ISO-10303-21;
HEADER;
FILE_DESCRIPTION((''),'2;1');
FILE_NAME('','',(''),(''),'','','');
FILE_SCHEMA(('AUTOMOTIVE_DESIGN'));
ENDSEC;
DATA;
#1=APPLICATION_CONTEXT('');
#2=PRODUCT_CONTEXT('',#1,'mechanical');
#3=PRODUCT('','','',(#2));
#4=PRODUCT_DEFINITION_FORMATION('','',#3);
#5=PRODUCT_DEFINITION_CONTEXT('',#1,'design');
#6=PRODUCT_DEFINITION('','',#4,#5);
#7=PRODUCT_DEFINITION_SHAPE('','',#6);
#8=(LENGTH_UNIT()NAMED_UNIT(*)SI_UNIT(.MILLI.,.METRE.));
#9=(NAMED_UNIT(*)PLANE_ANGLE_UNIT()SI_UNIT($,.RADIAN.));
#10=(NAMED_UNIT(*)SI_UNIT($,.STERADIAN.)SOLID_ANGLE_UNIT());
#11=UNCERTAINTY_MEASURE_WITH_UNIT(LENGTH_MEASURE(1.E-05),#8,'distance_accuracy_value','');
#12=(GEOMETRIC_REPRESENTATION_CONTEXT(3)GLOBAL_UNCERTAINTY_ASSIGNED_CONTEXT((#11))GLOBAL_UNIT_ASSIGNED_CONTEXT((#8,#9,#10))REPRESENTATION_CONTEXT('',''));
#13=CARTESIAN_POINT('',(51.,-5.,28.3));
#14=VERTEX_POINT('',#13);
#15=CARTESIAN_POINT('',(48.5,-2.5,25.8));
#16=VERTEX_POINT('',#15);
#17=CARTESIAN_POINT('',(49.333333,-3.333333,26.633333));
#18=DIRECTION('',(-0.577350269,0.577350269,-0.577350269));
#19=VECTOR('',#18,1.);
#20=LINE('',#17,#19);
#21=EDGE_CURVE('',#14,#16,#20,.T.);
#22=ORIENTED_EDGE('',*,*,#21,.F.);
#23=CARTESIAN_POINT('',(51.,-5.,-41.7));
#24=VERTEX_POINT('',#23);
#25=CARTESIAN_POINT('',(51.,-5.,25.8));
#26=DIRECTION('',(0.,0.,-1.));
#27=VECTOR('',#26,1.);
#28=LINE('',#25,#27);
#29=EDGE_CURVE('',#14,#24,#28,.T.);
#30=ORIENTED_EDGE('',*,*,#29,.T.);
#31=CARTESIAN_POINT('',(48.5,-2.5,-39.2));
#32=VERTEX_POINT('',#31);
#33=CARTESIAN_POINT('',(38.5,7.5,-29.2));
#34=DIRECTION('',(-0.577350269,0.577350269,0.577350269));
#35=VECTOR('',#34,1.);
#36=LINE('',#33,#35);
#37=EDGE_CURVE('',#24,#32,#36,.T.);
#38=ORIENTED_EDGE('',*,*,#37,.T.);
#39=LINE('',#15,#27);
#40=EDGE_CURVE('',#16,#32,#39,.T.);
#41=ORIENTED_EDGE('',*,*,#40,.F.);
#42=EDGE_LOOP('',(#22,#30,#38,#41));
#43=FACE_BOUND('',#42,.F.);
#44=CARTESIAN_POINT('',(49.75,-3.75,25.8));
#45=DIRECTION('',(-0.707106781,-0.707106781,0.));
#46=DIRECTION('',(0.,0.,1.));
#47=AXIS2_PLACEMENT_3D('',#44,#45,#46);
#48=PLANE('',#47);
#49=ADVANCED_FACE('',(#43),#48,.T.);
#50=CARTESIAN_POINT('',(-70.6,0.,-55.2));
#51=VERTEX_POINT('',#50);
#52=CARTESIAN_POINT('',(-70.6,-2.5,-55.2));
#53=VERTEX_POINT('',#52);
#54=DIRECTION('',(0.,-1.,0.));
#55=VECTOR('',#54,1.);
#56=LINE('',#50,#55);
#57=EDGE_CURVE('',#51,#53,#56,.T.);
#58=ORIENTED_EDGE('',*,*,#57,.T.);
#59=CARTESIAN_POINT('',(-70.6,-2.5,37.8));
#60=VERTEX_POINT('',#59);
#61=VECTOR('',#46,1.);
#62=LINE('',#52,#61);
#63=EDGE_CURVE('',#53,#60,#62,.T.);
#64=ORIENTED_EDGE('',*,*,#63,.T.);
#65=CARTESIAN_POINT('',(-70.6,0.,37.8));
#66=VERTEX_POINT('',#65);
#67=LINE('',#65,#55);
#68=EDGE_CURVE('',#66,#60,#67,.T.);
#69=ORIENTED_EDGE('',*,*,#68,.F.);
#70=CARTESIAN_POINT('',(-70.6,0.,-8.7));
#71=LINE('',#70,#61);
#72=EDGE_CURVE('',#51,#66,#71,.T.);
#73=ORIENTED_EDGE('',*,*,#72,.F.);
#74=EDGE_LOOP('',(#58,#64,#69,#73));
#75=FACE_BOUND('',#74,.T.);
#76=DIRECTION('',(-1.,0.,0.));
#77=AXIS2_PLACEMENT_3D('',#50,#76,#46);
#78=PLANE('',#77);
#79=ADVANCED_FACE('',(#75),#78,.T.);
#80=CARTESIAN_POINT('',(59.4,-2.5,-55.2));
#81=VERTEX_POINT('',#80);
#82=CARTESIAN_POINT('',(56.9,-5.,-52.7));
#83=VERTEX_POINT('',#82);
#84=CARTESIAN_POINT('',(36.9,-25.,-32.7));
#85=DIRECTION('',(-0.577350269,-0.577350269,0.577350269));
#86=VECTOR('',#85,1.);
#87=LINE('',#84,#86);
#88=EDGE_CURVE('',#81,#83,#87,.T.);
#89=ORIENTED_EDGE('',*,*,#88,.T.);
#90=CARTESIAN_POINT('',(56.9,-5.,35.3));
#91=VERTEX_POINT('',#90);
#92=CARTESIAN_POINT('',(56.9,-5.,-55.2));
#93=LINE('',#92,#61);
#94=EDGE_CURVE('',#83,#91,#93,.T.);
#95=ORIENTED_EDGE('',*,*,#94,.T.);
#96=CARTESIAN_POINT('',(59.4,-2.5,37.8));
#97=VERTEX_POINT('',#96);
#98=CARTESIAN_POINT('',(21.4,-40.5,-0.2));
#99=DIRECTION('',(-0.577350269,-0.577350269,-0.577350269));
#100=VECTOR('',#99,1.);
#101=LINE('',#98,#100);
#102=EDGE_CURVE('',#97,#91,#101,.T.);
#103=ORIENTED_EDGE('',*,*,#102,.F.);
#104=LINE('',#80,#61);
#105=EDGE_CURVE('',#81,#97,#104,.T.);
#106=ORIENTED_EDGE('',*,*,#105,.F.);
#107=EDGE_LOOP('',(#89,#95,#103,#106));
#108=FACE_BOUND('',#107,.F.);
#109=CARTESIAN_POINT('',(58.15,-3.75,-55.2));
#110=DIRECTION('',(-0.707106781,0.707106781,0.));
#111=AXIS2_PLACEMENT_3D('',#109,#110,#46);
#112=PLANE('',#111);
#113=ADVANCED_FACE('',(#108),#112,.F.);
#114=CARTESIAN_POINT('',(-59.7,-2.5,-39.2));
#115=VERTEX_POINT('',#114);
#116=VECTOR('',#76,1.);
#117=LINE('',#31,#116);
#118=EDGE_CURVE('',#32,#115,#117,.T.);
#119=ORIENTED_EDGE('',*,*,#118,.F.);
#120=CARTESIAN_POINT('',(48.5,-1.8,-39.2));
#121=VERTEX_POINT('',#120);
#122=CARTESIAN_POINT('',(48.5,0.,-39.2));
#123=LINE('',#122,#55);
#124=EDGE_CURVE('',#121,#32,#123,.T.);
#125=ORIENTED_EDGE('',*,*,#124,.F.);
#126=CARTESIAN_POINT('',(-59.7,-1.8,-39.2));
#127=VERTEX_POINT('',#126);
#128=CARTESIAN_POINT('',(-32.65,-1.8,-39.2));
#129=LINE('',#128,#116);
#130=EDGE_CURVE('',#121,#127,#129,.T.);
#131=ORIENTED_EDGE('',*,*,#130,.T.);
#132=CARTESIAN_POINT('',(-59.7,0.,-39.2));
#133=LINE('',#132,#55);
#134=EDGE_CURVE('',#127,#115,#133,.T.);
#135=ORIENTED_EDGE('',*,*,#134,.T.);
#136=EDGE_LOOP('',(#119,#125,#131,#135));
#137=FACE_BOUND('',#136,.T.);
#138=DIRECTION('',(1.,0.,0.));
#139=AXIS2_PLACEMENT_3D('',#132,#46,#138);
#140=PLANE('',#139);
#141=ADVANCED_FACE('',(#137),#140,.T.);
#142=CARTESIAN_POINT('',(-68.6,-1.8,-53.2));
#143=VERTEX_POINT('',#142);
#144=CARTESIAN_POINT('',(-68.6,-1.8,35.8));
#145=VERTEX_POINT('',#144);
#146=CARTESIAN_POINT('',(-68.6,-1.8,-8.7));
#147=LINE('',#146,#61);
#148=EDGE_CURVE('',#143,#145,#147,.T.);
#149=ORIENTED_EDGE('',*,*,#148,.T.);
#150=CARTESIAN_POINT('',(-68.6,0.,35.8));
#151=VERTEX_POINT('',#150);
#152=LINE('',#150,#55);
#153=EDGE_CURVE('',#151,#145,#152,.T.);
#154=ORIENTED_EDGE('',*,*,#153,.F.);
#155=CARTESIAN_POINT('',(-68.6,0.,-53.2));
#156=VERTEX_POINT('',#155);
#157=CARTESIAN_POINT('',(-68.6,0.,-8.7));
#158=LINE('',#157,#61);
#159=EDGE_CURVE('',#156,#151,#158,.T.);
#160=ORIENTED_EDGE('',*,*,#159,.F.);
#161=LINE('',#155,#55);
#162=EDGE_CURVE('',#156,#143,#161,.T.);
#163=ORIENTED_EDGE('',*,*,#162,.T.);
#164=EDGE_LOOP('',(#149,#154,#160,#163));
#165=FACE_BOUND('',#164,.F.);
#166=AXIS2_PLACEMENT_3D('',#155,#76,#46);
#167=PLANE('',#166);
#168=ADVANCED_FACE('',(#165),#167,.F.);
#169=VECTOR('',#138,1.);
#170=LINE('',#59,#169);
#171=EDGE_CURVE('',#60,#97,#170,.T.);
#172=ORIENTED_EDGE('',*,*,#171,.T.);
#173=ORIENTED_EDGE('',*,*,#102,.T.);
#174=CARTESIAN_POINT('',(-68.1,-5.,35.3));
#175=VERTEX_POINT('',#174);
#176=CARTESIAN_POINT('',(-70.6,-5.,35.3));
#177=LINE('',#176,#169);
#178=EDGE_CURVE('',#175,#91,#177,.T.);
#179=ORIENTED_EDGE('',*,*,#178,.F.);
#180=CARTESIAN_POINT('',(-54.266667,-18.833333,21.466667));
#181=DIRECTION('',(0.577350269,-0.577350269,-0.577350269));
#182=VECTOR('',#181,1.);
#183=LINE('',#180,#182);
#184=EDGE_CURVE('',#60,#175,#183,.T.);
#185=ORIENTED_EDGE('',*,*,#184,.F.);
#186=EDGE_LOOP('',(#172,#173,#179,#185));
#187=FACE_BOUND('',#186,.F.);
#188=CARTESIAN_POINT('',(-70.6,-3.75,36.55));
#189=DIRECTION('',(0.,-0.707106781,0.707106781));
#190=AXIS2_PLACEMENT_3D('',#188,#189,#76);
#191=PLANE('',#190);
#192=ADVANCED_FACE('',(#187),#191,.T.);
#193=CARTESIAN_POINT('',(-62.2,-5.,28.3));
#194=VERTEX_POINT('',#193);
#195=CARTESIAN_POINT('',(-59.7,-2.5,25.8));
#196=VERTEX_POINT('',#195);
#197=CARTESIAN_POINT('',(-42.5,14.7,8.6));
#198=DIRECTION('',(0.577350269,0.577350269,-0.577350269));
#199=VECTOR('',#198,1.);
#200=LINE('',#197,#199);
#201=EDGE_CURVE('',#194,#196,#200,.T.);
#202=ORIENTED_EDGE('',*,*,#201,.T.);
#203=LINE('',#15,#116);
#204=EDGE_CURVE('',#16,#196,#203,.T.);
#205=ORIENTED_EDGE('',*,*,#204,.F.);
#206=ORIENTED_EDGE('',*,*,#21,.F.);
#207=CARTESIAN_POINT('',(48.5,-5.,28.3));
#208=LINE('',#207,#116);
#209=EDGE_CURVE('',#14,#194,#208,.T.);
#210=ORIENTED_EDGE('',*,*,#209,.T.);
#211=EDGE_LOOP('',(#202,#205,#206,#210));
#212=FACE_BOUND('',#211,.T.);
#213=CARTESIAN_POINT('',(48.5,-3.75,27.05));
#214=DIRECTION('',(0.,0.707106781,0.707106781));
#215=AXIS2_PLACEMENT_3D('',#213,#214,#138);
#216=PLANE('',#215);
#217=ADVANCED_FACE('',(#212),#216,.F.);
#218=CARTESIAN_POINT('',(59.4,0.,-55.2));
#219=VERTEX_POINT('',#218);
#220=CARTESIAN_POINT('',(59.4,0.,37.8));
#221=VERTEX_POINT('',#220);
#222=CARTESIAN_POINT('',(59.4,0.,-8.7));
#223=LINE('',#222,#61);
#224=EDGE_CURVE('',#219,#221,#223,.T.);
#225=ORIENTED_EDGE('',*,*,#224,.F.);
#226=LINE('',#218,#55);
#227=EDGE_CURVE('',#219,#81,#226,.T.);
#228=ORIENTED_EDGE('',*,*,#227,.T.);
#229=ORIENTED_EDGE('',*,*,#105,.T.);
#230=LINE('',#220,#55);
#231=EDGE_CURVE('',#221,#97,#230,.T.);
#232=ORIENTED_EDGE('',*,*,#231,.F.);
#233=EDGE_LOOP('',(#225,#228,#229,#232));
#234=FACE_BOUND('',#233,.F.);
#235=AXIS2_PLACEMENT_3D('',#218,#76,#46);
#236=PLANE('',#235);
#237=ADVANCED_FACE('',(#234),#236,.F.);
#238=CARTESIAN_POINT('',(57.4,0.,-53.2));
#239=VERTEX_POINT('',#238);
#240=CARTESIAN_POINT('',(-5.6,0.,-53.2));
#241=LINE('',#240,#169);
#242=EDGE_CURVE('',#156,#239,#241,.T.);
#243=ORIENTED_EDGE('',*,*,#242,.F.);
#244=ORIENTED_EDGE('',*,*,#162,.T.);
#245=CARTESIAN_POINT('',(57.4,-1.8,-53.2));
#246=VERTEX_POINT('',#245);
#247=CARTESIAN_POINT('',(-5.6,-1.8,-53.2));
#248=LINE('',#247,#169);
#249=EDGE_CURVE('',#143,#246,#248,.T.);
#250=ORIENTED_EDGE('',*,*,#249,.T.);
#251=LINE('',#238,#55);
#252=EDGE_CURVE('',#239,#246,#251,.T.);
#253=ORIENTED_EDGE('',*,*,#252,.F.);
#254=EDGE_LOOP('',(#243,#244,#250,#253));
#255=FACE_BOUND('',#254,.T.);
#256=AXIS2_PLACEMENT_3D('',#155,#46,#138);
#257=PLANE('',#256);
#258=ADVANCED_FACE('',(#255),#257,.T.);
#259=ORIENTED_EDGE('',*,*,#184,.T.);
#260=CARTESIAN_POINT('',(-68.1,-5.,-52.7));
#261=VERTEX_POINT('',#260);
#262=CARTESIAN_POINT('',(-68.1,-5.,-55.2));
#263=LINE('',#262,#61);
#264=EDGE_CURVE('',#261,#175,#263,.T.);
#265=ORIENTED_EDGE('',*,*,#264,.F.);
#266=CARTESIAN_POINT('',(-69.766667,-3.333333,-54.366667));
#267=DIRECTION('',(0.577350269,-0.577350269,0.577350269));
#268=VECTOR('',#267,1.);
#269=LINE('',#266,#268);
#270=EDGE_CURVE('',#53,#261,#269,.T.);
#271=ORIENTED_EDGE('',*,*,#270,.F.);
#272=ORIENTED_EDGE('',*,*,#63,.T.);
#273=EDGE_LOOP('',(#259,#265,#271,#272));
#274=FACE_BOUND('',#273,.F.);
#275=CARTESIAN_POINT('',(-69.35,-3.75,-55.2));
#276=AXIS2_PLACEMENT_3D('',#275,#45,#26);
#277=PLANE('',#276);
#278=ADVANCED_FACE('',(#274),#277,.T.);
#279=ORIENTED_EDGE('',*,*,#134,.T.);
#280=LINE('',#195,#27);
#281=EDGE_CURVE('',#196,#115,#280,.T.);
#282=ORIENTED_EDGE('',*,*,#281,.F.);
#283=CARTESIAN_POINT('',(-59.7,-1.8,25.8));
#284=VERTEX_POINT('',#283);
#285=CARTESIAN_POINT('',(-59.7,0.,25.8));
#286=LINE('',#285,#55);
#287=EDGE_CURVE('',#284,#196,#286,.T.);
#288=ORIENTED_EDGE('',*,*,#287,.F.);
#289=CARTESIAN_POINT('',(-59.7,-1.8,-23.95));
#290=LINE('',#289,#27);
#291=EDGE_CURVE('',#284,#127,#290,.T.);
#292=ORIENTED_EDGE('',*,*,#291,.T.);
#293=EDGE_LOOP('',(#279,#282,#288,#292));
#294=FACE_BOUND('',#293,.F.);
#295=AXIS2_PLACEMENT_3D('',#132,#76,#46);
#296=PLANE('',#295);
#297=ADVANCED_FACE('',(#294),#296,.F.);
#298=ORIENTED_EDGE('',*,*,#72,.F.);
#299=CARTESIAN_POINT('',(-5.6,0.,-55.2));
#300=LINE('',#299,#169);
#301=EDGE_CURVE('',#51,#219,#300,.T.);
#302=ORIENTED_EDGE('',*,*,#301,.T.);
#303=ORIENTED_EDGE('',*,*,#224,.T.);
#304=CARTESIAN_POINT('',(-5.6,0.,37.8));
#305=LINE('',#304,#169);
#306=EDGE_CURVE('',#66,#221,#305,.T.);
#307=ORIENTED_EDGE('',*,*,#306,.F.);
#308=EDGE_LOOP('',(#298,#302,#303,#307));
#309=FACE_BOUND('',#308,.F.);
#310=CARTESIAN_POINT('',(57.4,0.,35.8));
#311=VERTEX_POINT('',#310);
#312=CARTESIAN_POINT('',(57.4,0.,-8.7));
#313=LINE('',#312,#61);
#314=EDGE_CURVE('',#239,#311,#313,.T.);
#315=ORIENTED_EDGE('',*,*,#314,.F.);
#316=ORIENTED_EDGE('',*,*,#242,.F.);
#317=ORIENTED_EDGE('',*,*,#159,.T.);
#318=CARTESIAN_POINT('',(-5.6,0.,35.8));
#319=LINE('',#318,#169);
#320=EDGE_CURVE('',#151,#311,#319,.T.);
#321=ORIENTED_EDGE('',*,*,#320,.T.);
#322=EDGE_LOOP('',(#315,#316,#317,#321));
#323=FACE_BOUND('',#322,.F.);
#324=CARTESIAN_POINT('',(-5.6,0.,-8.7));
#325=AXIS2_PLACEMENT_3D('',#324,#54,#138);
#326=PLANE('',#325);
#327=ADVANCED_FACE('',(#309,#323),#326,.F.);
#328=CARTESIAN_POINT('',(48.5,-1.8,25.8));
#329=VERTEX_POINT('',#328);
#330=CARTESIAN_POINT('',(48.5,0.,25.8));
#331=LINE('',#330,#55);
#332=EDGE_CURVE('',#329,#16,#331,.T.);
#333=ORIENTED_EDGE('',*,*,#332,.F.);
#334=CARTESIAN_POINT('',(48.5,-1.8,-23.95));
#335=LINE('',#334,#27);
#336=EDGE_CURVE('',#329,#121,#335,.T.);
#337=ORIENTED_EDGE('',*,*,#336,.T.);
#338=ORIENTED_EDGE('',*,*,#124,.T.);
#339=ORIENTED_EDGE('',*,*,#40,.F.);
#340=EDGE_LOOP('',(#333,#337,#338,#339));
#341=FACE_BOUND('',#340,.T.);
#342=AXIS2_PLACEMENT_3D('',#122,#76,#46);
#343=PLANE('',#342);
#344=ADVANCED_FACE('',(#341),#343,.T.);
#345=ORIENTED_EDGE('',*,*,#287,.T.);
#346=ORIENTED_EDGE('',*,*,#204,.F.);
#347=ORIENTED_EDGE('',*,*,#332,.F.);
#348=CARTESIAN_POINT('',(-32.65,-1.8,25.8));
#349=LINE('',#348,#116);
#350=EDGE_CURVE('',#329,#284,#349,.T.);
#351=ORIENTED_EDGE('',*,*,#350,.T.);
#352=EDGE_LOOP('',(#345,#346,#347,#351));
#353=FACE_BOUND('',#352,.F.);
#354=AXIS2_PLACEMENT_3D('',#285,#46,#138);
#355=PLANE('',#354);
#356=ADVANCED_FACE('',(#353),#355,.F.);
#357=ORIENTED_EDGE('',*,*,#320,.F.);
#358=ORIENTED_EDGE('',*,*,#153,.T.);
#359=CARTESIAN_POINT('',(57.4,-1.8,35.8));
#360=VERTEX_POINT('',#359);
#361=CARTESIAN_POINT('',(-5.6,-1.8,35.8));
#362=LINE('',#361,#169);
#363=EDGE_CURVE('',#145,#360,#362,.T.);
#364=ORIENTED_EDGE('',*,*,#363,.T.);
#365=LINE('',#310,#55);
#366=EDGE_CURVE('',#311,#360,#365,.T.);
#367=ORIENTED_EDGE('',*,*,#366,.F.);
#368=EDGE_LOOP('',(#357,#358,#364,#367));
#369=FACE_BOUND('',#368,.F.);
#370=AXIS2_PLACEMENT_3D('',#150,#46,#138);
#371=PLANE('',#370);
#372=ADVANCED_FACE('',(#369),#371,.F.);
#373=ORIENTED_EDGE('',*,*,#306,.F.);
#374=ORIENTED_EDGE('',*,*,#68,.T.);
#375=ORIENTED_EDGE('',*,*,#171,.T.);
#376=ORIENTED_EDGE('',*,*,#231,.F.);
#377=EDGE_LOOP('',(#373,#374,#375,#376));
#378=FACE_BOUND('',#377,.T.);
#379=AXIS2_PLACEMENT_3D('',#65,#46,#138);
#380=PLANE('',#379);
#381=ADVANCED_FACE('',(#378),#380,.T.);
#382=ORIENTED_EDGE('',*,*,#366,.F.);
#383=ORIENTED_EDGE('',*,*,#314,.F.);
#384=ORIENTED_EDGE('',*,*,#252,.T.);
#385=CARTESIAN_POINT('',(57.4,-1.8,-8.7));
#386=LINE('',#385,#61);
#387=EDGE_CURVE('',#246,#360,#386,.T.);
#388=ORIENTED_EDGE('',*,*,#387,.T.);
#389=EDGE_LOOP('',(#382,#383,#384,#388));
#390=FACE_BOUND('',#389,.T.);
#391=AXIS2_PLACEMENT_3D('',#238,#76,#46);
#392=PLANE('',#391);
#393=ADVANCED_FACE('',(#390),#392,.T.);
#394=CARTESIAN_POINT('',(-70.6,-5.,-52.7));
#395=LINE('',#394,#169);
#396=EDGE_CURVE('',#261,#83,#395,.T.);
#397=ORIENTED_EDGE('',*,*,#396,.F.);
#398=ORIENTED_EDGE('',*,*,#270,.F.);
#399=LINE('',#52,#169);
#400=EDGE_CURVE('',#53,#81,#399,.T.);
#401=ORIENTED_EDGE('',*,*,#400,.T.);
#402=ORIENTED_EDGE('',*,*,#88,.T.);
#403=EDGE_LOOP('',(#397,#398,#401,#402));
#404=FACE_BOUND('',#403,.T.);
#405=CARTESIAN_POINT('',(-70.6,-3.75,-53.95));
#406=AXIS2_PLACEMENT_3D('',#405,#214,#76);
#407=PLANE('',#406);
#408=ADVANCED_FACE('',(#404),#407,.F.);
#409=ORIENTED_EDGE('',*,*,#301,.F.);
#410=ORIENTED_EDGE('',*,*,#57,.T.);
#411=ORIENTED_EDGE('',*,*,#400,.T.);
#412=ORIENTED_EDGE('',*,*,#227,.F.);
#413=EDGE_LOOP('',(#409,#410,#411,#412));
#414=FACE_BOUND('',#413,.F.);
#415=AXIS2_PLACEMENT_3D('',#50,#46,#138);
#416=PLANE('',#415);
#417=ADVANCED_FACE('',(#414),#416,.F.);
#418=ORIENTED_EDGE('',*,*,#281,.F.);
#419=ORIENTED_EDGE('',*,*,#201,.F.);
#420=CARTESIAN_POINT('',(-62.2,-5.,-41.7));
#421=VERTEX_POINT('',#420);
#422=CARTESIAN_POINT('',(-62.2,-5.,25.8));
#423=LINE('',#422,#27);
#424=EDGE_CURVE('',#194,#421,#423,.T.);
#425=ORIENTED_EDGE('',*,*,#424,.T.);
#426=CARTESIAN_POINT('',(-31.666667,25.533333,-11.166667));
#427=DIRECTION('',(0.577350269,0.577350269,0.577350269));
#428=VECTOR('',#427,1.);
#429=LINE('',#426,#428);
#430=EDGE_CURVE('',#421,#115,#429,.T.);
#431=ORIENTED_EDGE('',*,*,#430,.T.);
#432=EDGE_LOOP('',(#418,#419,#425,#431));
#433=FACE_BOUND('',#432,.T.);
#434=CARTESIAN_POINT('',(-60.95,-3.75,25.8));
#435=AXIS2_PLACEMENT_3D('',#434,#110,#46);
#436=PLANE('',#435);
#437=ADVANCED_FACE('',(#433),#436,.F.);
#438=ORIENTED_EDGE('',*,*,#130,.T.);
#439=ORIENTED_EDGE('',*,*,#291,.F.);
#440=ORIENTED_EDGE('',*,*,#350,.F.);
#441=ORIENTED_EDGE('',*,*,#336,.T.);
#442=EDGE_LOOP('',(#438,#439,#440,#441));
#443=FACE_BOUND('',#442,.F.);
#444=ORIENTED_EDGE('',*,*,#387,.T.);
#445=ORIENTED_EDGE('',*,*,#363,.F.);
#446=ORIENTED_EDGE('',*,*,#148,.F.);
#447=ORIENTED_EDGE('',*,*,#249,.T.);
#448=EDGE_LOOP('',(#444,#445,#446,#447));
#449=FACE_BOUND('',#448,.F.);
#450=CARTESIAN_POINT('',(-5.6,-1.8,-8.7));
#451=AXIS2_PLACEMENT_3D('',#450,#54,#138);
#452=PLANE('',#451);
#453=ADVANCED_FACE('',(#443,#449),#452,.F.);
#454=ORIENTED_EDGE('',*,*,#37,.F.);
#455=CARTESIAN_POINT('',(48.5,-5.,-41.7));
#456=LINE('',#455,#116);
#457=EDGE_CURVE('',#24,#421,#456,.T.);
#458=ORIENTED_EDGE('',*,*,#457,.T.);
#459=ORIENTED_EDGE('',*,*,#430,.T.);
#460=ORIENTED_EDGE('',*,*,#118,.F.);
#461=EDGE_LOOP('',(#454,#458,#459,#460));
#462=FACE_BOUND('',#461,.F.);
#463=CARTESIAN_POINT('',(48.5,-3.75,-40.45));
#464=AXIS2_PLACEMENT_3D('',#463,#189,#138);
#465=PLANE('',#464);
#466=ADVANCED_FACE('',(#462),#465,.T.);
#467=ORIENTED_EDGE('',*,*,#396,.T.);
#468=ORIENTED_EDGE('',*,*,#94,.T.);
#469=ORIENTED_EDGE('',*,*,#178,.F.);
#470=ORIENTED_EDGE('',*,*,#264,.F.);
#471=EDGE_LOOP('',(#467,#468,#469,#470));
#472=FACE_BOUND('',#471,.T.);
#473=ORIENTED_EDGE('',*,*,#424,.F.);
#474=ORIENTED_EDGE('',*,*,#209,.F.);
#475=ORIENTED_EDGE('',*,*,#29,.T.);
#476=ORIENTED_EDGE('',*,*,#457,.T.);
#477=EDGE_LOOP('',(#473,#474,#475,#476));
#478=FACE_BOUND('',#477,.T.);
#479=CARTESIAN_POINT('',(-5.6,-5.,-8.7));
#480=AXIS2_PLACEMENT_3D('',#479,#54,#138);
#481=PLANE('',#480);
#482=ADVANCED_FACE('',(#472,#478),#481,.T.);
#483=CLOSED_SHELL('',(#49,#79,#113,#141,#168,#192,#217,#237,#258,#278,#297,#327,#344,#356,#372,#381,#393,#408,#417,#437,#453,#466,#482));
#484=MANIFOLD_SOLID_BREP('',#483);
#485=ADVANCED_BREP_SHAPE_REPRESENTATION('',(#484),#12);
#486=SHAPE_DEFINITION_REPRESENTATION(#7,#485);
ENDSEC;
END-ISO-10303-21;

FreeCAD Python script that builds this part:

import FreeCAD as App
import Part
import Sketcher

V = App.Vector
Q = App.Units.Quantity


def edges_at(feature, points):
    """Names of the edges that pass closest to the given points."""
    edges = feature.Shape.Edges
    near = lambda p: min(range(len(edges)), key=lambda i: edges[i].distToShape(Part.Vertex(*p))[0])
    return sorted({f"Edge{near(p) + 1}" for p in points})


def add_polygon(sketch, points):
    """Adds a closed chain of lines whose ends are joined by coincident constraints."""
    first, n = sketch.GeometryCount, len(points)
    for a, b in zip(points, points[1:] + points[:1]):
        sketch.addGeometry(Part.LineSegment(App.Vector(*a, 0), App.Vector(*b, 0)), False)
    for i in range(n):
        sketch.addConstraint(Sketcher.Constraint("Coincident", first + i, 2, first + (i + 1) % n, 1))

doc = App.newDocument("Part")
body = doc.addObject("PartDesign::Body", "Body")

sketch1 = body.newObject("Sketcher::SketchObject", "Sketch")
sketch1.AttachmentSupport = (doc.getObject("XZ_Plane"), [""])
sketch1.MapMode = "FlatFace"
add_polygon(sketch1, [(-71, 38), (-71, -55), (59, -55), (59, 38)])
sketch1.addConstraint([
    Sketcher.Constraint("Vertical", 0),
    Sketcher.Constraint("Horizontal", 1),
    Sketcher.Constraint("Vertical", 2),
    Sketcher.Constraint("Horizontal", 3),
    Sketcher.Constraint("DistanceX", 1, 1, 1, 2, Q("130 mm")),
    Sketcher.Constraint("DistanceY", 0, 2, 0, 1, Q("93 mm")),
    Sketcher.Constraint("DistanceX", 0, 2, -1, 1, Q("70.6 mm")),
    Sketcher.Constraint("DistanceY", 0, 2, -1, 1, Q("55.2 mm")),
])
pad1 = body.newObject("PartDesign::Pad", "Pad")
pad1.Profile = sketch1
pad1.Length = 5

sketch2 = body.newObject("Sketcher::SketchObject", "Sketch001")
sketch2.AttachmentSupport = (doc.getObject("XZ_Plane"), [""])
sketch2.MapMode = "FlatFace"
add_polygon(sketch2, [(-69, 36), (-69, -53), (57, -53), (57, 36)])
sketch2.addConstraint([
    Sketcher.Constraint("Vertical", 0),
    Sketcher.Constraint("Horizontal", 1),
    Sketcher.Constraint("Vertical", 2),
    Sketcher.Constraint("Horizontal", 3),
    Sketcher.Constraint("DistanceX", 1, 1, 1, 2, Q("126 mm")),
    Sketcher.Constraint("DistanceY", 0, 2, 0, 1, Q("89 mm")),
    Sketcher.Constraint("DistanceX", 0, 2, -1, 1, Q("68.6 mm")),
    Sketcher.Constraint("DistanceY", 0, 2, -1, 1, Q("53.2 mm")),
])
pocket1 = body.newObject("PartDesign::Pocket", "Pocket")
pocket1.Profile = sketch2
pocket1.Length = 1.8
pocket1.Reversed = True

sketch3 = body.newObject("Sketcher::SketchObject", "Sketch002")
sketch3.AttachmentSupport = (doc.getObject("XZ_Plane"), [""])
sketch3.MapMode = "FlatFace"
add_polygon(sketch3, [(-60, 26), (-60, -39), (48, -39), (48, 26)])
sketch3.addConstraint([
    Sketcher.Constraint("Vertical", 0),
    Sketcher.Constraint("Horizontal", 1),
    Sketcher.Constraint("Vertical", 2),
    Sketcher.Constraint("Horizontal", 3),
    Sketcher.Constraint("DistanceY", 0, 2, 0, 1, Q("65 mm")),
    Sketcher.Constraint("DistanceX", 1, 1, 1, 2, Q("108.2 mm")),
    Sketcher.Constraint("DistanceX", 0, 2, -1, 1, Q("59.7 mm")),
    Sketcher.Constraint("DistanceY", 0, 2, -1, 1, Q("39.2 mm")),
])
pocket2 = body.newObject("PartDesign::Pocket", "Pocket001")
pocket2.Profile = sketch3
pocket2.Length = 25
pocket2.Reversed = True
doc.recompute()

chamfer = body.newObject("PartDesign::Chamfer", "Chamfer")
chamfer.Base = (pocket2, edges_at(pocket2, [
    (-5.6, -5, 25.8),
    (-59.7, -5, -6.7),
    (48.5, -5, -6.7),
    (-5.6, -5, -39.2),
    (-70.6, -5, -8.7),
    (-5.6, -5, -55.2),
    (-5.6, -5, 37.8),
    (59.4, -5, -8.7),
]))
chamfer.Size = 2.5

doc.recompute()
